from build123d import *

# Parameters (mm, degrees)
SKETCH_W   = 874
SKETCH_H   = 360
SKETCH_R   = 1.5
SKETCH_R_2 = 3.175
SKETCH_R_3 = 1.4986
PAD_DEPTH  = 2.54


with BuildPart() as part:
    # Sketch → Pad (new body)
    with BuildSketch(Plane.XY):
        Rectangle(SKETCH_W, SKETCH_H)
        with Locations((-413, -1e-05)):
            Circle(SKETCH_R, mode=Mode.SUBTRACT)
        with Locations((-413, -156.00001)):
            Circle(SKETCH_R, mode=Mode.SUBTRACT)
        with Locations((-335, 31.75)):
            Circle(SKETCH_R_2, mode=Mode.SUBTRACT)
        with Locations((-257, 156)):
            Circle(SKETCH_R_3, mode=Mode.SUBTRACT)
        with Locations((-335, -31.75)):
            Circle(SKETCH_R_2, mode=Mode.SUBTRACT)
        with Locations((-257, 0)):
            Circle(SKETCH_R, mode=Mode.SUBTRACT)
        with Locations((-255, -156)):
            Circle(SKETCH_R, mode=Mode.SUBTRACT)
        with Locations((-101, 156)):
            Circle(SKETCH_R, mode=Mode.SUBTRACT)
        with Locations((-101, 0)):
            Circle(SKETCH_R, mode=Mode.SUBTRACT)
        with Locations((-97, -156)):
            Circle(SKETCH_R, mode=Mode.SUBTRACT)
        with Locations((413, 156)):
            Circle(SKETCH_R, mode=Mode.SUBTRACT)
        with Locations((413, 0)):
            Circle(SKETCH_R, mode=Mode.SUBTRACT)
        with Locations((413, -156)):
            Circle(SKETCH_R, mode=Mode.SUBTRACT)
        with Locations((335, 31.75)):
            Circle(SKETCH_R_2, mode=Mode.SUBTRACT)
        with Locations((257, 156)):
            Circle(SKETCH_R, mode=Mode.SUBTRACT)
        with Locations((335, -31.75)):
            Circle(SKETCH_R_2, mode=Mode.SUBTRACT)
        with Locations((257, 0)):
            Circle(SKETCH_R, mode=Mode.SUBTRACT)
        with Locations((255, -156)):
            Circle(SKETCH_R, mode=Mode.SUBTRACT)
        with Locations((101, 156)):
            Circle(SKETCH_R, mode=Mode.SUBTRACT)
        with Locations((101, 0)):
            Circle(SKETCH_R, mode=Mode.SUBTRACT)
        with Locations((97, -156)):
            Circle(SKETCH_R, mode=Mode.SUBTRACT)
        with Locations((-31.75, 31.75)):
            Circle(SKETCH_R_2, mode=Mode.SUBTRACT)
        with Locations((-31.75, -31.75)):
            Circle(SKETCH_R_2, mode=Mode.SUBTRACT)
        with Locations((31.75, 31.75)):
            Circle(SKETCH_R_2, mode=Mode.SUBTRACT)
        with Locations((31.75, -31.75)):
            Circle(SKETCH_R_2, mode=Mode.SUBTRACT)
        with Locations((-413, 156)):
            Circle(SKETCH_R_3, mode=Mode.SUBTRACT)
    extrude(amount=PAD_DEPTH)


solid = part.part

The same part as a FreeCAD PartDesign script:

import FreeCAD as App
import Part
import Sketcher
Q = App.Units.Quantity

doc = App.newDocument("Part")
body = doc.addObject("PartDesign::Body", "Body")

sketch1 = doc.addObject("Sketcher::SketchObject", "Sketch")
body.addObject(sketch1)
sketch1.AttachmentSupport = (doc.XY_Plane, [""])
sketch1.MapMode = "FlatFace"
sketch1.addGeometry(Part.LineSegment(App.Vector(-437, 180, 0), App.Vector(-437, -180, 0)), False)
sketch1.addGeometry(Part.LineSegment(App.Vector(-437, -180, 0), App.Vector(437, -180, 0)), False)
sketch1.addGeometry(Part.LineSegment(App.Vector(437, -180, 0), App.Vector(437, 180, 0)), False)
sketch1.addGeometry(Part.LineSegment(App.Vector(437, 180, 0), App.Vector(-437, 180, 0)), False)
sketch1.addGeometry(Part.Circle(App.Vector(-413, -156, 0), App.Vector(0, 0, 1), 1.5), False)
sketch1.addGeometry(Part.Circle(App.Vector(-255, -156, 0), App.Vector(0, 0, 1), 1.5), False)
sketch1.addGeometry(Part.Circle(App.Vector(-97, -156, 0), App.Vector(0, 0, 1), 1.5), False)
sketch1.addGeometry(Part.Circle(App.Vector(-335, -31.8, 0), App.Vector(0, 0, 1), 3.2), False)
sketch1.addGeometry(Part.Circle(App.Vector(-413, 0, 0), App.Vector(0, 0, 1), 1.5), False)
sketch1.addGeometry(Part.Circle(App.Vector(-31.8, -31.8, 0), App.Vector(0, 0, 1), 3.2), False)
sketch1.addGeometry(Part.Circle(App.Vector(97, -156, 0), App.Vector(0, 0, 1), 1.5), False)
sketch1.addGeometry(Part.Circle(App.Vector(255, -156, 0), App.Vector(0, 0, 1), 1.5), False)
sketch1.addGeometry(Part.Circle(App.Vector(413, -156, 0), App.Vector(0, 0, 1), 1.5), False)
sketch1.addGeometry(Part.Circle(App.Vector(31.8, -31.8, 0), App.Vector(0, 0, 1), 3.2), False)
sketch1.addGeometry(Part.Circle(App.Vector(335, -31.8, 0), App.Vector(0, 0, 1), 3.2), False)
sketch1.addGeometry(Part.Circle(App.Vector(-335, 31.8, 0), App.Vector(0, 0, 1), 3.2), False)
sketch1.addGeometry(Part.Circle(App.Vector(-257, 0, 0), App.Vector(0, 0, 1), 1.5), False)
sketch1.addGeometry(Part.Circle(App.Vector(-101, 0, 0), App.Vector(0, 0, 1), 1.5), False)
sketch1.addGeometry(Part.Circle(App.Vector(-31.8, 31.8, 0), App.Vector(0, 0, 1), 3.2), False)
sketch1.addGeometry(Part.Circle(App.Vector(-413, 156, 0), App.Vector(0, 0, 1), 1.5), False)
sketch1.addGeometry(Part.Circle(App.Vector(-257, 156, 0), App.Vector(0, 0, 1), 1.5), False)
sketch1.addGeometry(Part.Circle(App.Vector(-101, 156, 0), App.Vector(0, 0, 1), 1.5), False)
sketch1.addGeometry(Part.Circle(App.Vector(101, 0, 0), App.Vector(0, 0, 1), 1.5), False)
sketch1.addGeometry(Part.Circle(App.Vector(31.8, 31.8, 0), App.Vector(0, 0, 1), 3.2), False)
sketch1.addGeometry(Part.Circle(App.Vector(257, 0, 0), App.Vector(0, 0, 1), 1.5), False)
sketch1.addGeometry(Part.Circle(App.Vector(413, 0, 0), App.Vector(0, 0, 1), 1.5), False)
sketch1.addGeometry(Part.Circle(App.Vector(335, 31.8, 0), App.Vector(0, 0, 1), 3.2), False)
sketch1.addGeometry(Part.Circle(App.Vector(101, 156, 0), App.Vector(0, 0, 1), 1.5), False)
sketch1.addGeometry(Part.Circle(App.Vector(257, 156, 0), App.Vector(0, 0, 1), 1.5), False)
sketch1.addGeometry(Part.Circle(App.Vector(413, 156, 0), App.Vector(0, 0, 1), 1.5), False)
sketch1.addConstraint(Sketcher.Constraint("Coincident", 0, 2, 1, 1))
sketch1.addConstraint(Sketcher.Constraint("Coincident", 1, 2, 2, 1))
sketch1.addConstraint(Sketcher.Constraint("Coincident", 2, 2, 3, 1))
sketch1.addConstraint(Sketcher.Constraint("Coincident", 3, 2, 0, 1))
sketch1.addConstraint(Sketcher.Constraint("Vertical", 0))
sketch1.addConstraint(Sketcher.Constraint("Horizontal", 1))
sketch1.addConstraint(Sketcher.Constraint("Vertical", 2))
sketch1.addConstraint(Sketcher.Constraint("Horizontal", 3))
sketch1.addConstraint(Sketcher.Constraint("Equal", 4, 5))
sketch1.addConstraint(Sketcher.Constraint("Equal", 5, 6))
sketch1.addConstraint(Sketcher.Constraint("Equal", 6, 8))
sketch1.addConstraint(Sketcher.Constraint("Equal", 7, 9))
sketch1.addConstraint(Sketcher.Constraint("Equal", 8, 10))
sketch1.addConstraint(Sketcher.Constraint("Equal", 10, 11))
sketch1.addConstraint(Sketcher.Constraint("Equal", 11, 12))
sketch1.addConstraint(Sketcher.Constraint("Equal", 9, 13))
sketch1.addConstraint(Sketcher.Constraint("Equal", 13, 14))
sketch1.addConstraint(Sketcher.Constraint("Equal", 14, 15))
sketch1.addConstraint(Sketcher.Constraint("Equal", 12, 16))
sketch1.addConstraint(Sketcher.Constraint("Equal", 16, 17))
sketch1.addConstraint(Sketcher.Constraint("Equal", 15, 18))
sketch1.addConstraint(Sketcher.Constraint("Equal", 19, 20))
sketch1.addConstraint(Sketcher.Constraint("Equal", 17, 21))
sketch1.addConstraint(Sketcher.Constraint("Equal", 21, 22))
sketch1.addConstraint(Sketcher.Constraint("Equal", 18, 23))
sketch1.addConstraint(Sketcher.Constraint("Equal", 22, 24))
sketch1.addConstraint(Sketcher.Constraint("Equal", 24, 25))
sketch1.addConstraint(Sketcher.Constraint("Equal", 23, 26))
sketch1.addConstraint(Sketcher.Constraint("Equal", 25, 27))
sketch1.addConstraint(Sketcher.Constraint("Equal", 27, 28))
sketch1.addConstraint(Sketcher.Constraint("Equal", 28, 29))
sketch1.addConstraint(Sketcher.Constraint("Symmetric", 14, 3, 15, 3, -1, 1))
sketch1.addConstraint(Sketcher.Constraint("Symmetric", 13, 3, 18, 3, -1, 1))
sketch1.addConstraint(Sketcher.Constraint("Symmetric", 12, 3, 19, 3, -1, 1))
sketch1.addConstraint(Sketcher.Constraint("Symmetric", 17, 3, 22, 3, -1, 1))
sketch1.addConstraint(Sketcher.Constraint("Symmetric", 9, 3, 23, 3, -1, 1))
sketch1.addConstraint(Sketcher.Constraint("Symmetric", 16, 3, 24, 3, -1, 1))
sketch1.addConstraint(Sketcher.Constraint("Symmetric", 7, 3, 26, 3, -1, 1))
sketch1.addConstraint(Sketcher.Constraint("Symmetric", 0, 2, 2, 2, -1, 1))
sketch1.addConstraint(Sketcher.Constraint("Symmetric", 6, 3, 10, 3, -2))
sketch1.addConstraint(Sketcher.Constraint("Symmetric", 5, 3, 11, 3, -2))
sketch1.addConstraint(Sketcher.Constraint("Symmetric", 9, 3, 13, 3, -2))
sketch1.addConstraint(Sketcher.Constraint("Symmetric", 7, 3, 14, 3, -2))
sketch1.addConstraint(Sketcher.Constraint("Symmetric", 21, 3, 27, 3, -2))
sketch1.addConstraint(Sketcher.Constraint("Symmetric", 20, 3, 28, 3, -2))
sketch1.addConstraint(Sketcher.Constraint("Symmetric", 19, 3, 29, 3, -2))
sketch1.addConstraint(Sketcher.Constraint("PointOnObject", 16, 3, -1))
sketch1.addConstraint(Sketcher.Constraint("PointOnObject", 17, 3, -1))
sketch1.addConstraint(Sketcher.Constraint("PointOnObject", 25, 3, -1))
sketch1.addConstraint(Sketcher.Constraint("Horizontal", 5, 3, 6, 3))
sketch1.addConstraint(Sketcher.Constraint("Horizontal", 7, 3, 9, 3))
sketch1.addConstraint(Sketcher.Constraint("Horizontal", 11, 3, 12, 3))
sketch1.addConstraint(Sketcher.Constraint("Horizontal", 19, 3, 20, 3))
sketch1.addConstraint(Sketcher.Constraint("Horizontal", 20, 3, 21, 3))
sketch1.addConstraint(Sketcher.Constraint("Vertical", 4, 3, 8, 3))
sketch1.addConstraint(Sketcher.Constraint("Vertical", 8, 3, 19, 3))
sketch1.addConstraint(Sketcher.Constraint("Vertical", 16, 3, 20, 3))
sketch1.addConstraint(Sketcher.Constraint("Vertical", 17, 3, 21, 3))
sketch1.addConstraint(Sketcher.Constraint("Vertical", 12, 3, 25, 3))
sketch1.addConstraint(Sketcher.Constraint("Diameter", 4, Q("3 mm")))
sketch1.addConstraint(Sketcher.Constraint("Diameter", 7, Q("6.35 mm")))
sketch1.addConstraint(Sketcher.Constraint("DistanceX", 1, 1, 1, 2, Q("874 mm")))
sketch1.addConstraint(Sketcher.Constraint("DistanceY", 0, 2, 0, 1, Q("360 mm")))
sketch1.addConstraint(Sketcher.Constraint("DistanceX", 4, 3, -1, 1, Q("413 mm")))
sketch1.addConstraint(Sketcher.Constraint("DistanceX", 5, 3, -1, 1, Q("255 mm")))
sketch1.addConstraint(Sketcher.Constraint("DistanceY", 5, 3, -1, 1, Q("156 mm")))
sketch1.addConstraint(Sketcher.Constraint("DistanceX", 6, 3, -1, 1, Q("97 mm")))
sketch1.addConstraint(Sketcher.Constraint("DistanceX", 7, 3, -1, 1, Q("335 mm")))
sketch1.addConstraint(Sketcher.Constraint("DistanceX", 16, 3, -1, 1, Q("257 mm")))
sketch1.addConstraint(Sketcher.Constraint("DistanceX", 17, 3, -1, 1, Q("101 mm")))
sketch1.addConstraint(Sketcher.Constraint("DistanceY", 4, 3, 8, 3, Q("156 mm")))
sketch1.addConstraint(Sketcher.Constraint("Diameter", 19, Q("2.9972 mm")))
sketch1.addConstraint(Sketcher.Constraint("DistanceX", 9, 3, 13, 3, Q("63.5 mm")))
sketch1.addConstraint(Sketcher.Constraint("DistanceY", 7, 3, 15, 3, Q("63.5 mm")))
sketch1.addConstraint(Sketcher.Constraint("DistanceY", 4, 3, -1, 1, Q("156.00001 mm")))
pad1 = doc.addObject("PartDesign::Pad", "Pad")
body.addObject(pad1)
pad1.Profile = sketch1
pad1.Length = 2.54

doc.recompute()
